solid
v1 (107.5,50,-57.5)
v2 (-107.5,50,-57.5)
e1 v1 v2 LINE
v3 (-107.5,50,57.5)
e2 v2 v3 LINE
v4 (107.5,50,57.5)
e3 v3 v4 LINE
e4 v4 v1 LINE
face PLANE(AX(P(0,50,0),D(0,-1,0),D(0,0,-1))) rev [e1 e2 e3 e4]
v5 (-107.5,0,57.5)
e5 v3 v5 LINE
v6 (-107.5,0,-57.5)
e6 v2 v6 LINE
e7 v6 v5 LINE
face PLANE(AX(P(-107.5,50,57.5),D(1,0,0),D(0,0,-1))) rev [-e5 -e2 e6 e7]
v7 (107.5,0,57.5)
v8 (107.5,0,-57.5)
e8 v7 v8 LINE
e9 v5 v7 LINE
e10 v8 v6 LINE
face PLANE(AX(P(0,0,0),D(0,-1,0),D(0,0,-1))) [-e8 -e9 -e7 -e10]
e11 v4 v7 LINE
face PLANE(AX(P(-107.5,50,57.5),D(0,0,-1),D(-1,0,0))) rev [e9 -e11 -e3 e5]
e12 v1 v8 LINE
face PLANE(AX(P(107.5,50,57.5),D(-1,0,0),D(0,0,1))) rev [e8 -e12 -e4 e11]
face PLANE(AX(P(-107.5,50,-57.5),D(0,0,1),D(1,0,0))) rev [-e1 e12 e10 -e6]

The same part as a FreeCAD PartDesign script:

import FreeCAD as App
import Part
import Sketcher

V = App.Vector

doc = App.newDocument("Part")
body = doc.addObject("PartDesign::Body", "Body")

# Sketch on XZ plane
sketch1 = doc.addObject("Sketcher::SketchObject", "Sketch")
body.addObject(sketch1)
sketch1.AttachmentSupport = (doc.XZ_Plane, [""])
sketch1.MapMode = "FlatFace"
sketch1.addGeometry([
    Part.LineSegment(V(-107.5, -57.5, 0), V(-107.5, 57.5, 0)),
    Part.LineSegment(V(-107.5, 57.5, 0), V(107.5, 57.5, 0)),
    Part.LineSegment(V(107.5, 57.5, 0), V(107.5, -57.5, 0)),
    Part.LineSegment(V(107.5, -57.5, 0), V(-107.5, -57.5, 0)),
], False)
sketch1.addConstraint([
    Sketcher.Constraint("Coincident", 0, 2, 1, 1),
    Sketcher.Constraint("Coincident", 1, 2, 2, 1),
    Sketcher.Constraint("Coincident", 2, 2, 3, 1),
    Sketcher.Constraint("Coincident", 3, 2, 0, 1),
    Sketcher.Constraint("Vertical", 0),
    Sketcher.Constraint("Horizontal", 1),
    Sketcher.Constraint("Vertical", 2),
    Sketcher.Constraint("Horizontal", 3),
    Sketcher.Constraint("Symmetric", 0, 2, 2, 2, -1, 1),
    Sketcher.Constraint("DistanceX", 1, 1, 1, 2, 215.0),
    Sketcher.Constraint("DistanceY", 0, 1, 0, 2, 115.0),
])
pad1 = doc.addObject("PartDesign::Pad", "Pad")
body.addObject(pad1)
pad1.Profile = sketch1
pad1.Length = 50
pad1.Reversed = True

doc.recompute()
